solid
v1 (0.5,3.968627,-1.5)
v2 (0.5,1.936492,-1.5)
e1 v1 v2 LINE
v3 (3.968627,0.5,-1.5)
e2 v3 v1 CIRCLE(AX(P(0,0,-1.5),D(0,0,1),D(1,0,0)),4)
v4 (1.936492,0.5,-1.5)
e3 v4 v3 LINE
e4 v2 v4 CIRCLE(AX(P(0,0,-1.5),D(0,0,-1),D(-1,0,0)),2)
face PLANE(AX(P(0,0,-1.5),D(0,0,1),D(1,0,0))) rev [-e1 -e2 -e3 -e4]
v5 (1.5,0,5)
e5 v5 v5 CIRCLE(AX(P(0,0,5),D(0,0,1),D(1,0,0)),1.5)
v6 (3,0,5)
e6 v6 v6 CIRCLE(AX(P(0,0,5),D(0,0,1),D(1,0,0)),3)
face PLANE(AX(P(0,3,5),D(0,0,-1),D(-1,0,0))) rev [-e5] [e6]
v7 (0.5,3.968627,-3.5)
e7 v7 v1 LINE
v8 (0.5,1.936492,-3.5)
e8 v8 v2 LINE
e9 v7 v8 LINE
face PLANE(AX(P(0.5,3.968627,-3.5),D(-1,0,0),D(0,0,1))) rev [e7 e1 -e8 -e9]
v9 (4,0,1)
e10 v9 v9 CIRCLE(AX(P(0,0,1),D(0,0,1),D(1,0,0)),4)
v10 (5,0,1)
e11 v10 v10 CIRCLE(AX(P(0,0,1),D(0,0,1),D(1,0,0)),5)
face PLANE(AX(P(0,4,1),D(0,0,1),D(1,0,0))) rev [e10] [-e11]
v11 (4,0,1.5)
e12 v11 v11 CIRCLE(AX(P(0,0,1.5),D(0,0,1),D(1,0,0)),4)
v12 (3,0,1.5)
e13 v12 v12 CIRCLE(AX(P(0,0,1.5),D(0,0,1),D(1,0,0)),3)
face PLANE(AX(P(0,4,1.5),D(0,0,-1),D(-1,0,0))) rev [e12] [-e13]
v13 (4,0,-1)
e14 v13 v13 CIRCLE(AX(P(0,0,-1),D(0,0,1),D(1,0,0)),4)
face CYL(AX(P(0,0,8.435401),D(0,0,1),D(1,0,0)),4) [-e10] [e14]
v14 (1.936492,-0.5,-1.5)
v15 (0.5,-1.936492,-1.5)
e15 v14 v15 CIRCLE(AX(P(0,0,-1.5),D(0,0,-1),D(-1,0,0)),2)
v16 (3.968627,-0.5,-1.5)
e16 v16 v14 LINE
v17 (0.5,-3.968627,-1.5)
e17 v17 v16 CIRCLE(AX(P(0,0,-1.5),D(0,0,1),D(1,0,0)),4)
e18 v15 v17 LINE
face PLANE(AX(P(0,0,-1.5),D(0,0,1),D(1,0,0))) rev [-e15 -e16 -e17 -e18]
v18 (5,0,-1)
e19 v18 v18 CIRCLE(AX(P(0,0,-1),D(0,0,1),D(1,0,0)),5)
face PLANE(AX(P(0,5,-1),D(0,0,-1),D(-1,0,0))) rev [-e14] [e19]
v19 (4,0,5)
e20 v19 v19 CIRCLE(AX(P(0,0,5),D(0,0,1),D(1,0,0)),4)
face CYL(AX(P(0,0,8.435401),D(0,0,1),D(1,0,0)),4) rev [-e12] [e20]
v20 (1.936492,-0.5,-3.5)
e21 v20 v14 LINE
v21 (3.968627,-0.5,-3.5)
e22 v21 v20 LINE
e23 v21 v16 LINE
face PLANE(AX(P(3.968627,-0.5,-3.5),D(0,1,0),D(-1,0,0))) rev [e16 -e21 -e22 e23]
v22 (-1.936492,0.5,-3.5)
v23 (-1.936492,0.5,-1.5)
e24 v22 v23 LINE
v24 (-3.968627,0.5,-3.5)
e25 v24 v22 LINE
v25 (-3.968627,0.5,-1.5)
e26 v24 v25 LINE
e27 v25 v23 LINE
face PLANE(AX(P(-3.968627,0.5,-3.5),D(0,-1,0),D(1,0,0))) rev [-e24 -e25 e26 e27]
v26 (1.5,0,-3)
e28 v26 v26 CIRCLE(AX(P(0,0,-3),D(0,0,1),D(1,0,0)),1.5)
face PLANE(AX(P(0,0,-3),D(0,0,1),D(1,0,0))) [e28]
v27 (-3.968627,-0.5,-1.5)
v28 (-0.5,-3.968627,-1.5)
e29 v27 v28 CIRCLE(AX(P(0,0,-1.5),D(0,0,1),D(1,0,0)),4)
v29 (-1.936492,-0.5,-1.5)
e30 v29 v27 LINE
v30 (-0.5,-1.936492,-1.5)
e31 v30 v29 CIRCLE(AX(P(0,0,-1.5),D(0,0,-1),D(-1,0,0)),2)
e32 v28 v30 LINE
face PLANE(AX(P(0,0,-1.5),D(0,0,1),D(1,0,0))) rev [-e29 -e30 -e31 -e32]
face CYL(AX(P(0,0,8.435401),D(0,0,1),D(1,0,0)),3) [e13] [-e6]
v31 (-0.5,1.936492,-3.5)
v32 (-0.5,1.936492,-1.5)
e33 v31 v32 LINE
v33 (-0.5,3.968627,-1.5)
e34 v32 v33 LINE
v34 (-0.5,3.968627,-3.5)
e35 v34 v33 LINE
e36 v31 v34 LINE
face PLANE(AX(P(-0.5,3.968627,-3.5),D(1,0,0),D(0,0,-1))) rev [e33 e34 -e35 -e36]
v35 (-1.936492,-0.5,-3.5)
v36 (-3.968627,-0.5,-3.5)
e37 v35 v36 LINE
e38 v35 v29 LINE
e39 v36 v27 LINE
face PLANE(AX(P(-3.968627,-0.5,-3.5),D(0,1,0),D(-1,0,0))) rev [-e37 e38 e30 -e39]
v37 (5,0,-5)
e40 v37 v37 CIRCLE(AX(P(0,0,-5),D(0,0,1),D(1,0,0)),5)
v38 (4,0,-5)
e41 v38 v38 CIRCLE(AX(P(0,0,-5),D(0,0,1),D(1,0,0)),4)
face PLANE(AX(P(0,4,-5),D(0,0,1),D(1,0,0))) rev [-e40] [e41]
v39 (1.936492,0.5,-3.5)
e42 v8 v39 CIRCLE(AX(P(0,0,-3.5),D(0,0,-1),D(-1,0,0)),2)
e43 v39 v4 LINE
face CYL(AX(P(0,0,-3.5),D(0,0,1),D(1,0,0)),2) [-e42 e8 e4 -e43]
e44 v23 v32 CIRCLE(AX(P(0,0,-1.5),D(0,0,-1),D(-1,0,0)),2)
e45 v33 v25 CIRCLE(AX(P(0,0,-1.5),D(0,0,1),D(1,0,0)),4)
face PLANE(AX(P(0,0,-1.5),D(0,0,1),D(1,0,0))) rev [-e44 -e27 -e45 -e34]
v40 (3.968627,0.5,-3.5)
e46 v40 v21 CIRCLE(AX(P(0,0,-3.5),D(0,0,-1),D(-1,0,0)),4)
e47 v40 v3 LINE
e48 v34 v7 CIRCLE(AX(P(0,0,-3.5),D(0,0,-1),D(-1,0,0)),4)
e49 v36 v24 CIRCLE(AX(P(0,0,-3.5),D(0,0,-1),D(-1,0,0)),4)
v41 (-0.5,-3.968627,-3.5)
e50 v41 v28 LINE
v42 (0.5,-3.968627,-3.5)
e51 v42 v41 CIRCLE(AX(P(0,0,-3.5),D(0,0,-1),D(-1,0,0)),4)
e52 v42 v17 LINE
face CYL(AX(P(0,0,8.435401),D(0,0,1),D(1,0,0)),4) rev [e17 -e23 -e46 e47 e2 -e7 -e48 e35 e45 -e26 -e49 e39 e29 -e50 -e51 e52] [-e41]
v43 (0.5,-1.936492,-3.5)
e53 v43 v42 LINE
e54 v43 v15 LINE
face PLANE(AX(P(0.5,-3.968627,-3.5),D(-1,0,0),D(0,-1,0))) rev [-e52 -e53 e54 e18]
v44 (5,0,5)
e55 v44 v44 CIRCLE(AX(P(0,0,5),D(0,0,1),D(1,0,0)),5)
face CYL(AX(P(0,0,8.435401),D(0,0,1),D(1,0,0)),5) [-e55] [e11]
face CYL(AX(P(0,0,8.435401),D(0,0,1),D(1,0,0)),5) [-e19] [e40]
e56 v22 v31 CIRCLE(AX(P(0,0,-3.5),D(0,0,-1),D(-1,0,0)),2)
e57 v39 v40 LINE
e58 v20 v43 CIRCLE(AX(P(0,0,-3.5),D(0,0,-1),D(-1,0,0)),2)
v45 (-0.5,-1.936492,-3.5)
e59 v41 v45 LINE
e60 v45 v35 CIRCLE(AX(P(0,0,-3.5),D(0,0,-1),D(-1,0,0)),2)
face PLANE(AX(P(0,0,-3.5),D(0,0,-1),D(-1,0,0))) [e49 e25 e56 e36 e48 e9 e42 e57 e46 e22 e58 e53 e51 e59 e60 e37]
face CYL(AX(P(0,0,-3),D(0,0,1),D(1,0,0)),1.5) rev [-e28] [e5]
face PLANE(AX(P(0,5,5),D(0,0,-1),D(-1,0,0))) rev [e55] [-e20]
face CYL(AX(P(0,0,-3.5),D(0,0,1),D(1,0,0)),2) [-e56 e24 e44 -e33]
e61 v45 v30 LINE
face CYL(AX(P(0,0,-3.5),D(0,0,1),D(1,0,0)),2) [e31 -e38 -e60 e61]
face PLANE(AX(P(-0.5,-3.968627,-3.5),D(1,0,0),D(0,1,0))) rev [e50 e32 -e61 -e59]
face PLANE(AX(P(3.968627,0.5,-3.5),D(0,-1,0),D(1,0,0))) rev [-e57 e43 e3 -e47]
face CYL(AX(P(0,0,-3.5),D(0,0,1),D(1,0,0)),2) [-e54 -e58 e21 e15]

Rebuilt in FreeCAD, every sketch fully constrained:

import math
import FreeCAD as App
import Part
import Sketcher

doc = App.newDocument("Part")
body = doc.addObject("PartDesign::Body", "Body")

# Sketch on YZ plane
sketch1 = doc.addObject("Sketcher::SketchObject", "Sketch")
body.addObject(sketch1)
sketch1.AttachmentSupport = (doc.YZ_Plane, [""])
sketch1.MapMode = "FlatFace"
sketch1.addGeometry([
    Part.LineSegment(App.Vector(0, -1.5, 0), App.Vector(4, -1.5, 0)),  # 0
    Part.LineSegment(App.Vector(4, -1.5, 0), App.Vector(4, -5, 0)),  # 1
    Part.LineSegment(App.Vector(4, -5, 0), App.Vector(5, -5, 0)),  # 2
    Part.LineSegment(App.Vector(5, -5, 0), App.Vector(5, -1, 0)),  # 3
    Part.LineSegment(App.Vector(5, -1, 0), App.Vector(4, -1, 0)),  # 4
    Part.LineSegment(App.Vector(4, -1, 0), App.Vector(4, 1, 0)),  # 5
    Part.LineSegment(App.Vector(4, 1, 0), App.Vector(5, 1, 0)),  # 6
    Part.LineSegment(App.Vector(5, 1, 0), App.Vector(5, 5, 0)),  # 7
    Part.LineSegment(App.Vector(5, 5, 0), App.Vector(4, 5, 0)),  # 8
    Part.LineSegment(App.Vector(4, 5, 0), App.Vector(4, 1.5, 0)),  # 9
    Part.LineSegment(App.Vector(4, 1.5, 0), App.Vector(3, 1.5, 0)),  # 10
    Part.LineSegment(App.Vector(3, 1.5, 0), App.Vector(3, 5, 0)),  # 11
    Part.LineSegment(App.Vector(3, 5, 0), App.Vector(0, 5, 0)),  # 12
    Part.LineSegment(App.Vector(0, 5, 0), App.Vector(0, -1.5, 0)),  # 13
], False)
sketch1.addConstraint([
    Sketcher.Constraint("Coincident", 0, 2, 1, 1),
    Sketcher.Constraint("Coincident", 1, 2, 2, 1),
    Sketcher.Constraint("Coincident", 2, 2, 3, 1),
    Sketcher.Constraint("Coincident", 3, 2, 4, 1),
    Sketcher.Constraint("Coincident", 4, 2, 5, 1),
    Sketcher.Constraint("Coincident", 5, 2, 6, 1),
    Sketcher.Constraint("Coincident", 6, 2, 7, 1),
    Sketcher.Constraint("Coincident", 7, 2, 8, 1),
    Sketcher.Constraint("Coincident", 8, 2, 9, 1),
    Sketcher.Constraint("Coincident", 9, 2, 10, 1),
    Sketcher.Constraint("Coincident", 10, 2, 11, 1),
    Sketcher.Constraint("Coincident", 11, 2, 12, 1),
    Sketcher.Constraint("Coincident", 12, 2, 13, 1),
    Sketcher.Constraint("Coincident", 13, 2, 0, 1),
    Sketcher.Constraint("Horizontal", 0),
    Sketcher.Constraint("Vertical", 1),
    Sketcher.Constraint("Horizontal", 2),
    Sketcher.Constraint("Vertical", 3),
    Sketcher.Constraint("Horizontal", 4),
    Sketcher.Constraint("Vertical", 5),
    Sketcher.Constraint("Horizontal", 6),
    Sketcher.Constraint("Vertical", 7),
    Sketcher.Constraint("Horizontal", 8),
    Sketcher.Constraint("Vertical", 9),
    Sketcher.Constraint("Horizontal", 10),
    Sketcher.Constraint("Vertical", 11),
    Sketcher.Constraint("Horizontal", 12),
    Sketcher.Constraint("Vertical", 13),
    Sketcher.Constraint("Symmetric", 3, 2, 6, 2, -1),
    Sketcher.Constraint("Symmetric", 1, 2, 8, 2, -1),
    Sketcher.Constraint("PointOnObject", 12, 2, -2),
    Sketcher.Constraint("Horizontal", 8, 2, 11, 2),
    Sketcher.Constraint("Vertical", 1, 2, 4, 2),
    Sketcher.Constraint("Equal", 8, 10),
    Sketcher.Constraint("Equal", 0, 3),
    Sketcher.Constraint("Equal", 1, 9),
    Sketcher.Constraint("DistanceX", 0, 1, 0, 2, 4.0),
    Sketcher.Constraint("DistanceX", 2, 1, 2, 2, 1.0),
    Sketcher.Constraint("DistanceY", 5, 1, 5, 2, 2.0),
    Sketcher.Constraint("DistanceY", 1, 2, 1, 1, 3.5),
])
revolution = doc.addObject("PartDesign::Revolution", "Revolution")
body.addObject(revolution)
revolution.Profile = sketch1
revolution.ReferenceAxis = (sketch1, ["V_Axis"])
revolution.Angle = 360

# Sketch on XY plane
sketch2 = doc.addObject("Sketcher::SketchObject", "Sketch001")
body.addObject(sketch2)
sketch2.AttachmentSupport = (doc.XY_Plane, [""])
sketch2.MapMode = "FlatFace"
sketch2.AttachmentOffset = App.Placement(App.Vector(0, 0, -1.5), App.Rotation())
sketch2.addGeometry([
    Part.LineSegment(App.Vector(0.5, 3.968627, 0), App.Vector(0.5, 1.936492, 0)),  # 0
    Part.ArcOfCircle(Part.Circle(App.Vector(0, 0, 0), App.Vector(0, 0, 1), 2), math.radians(14.477512), math.radians(75.522488)),  # 1
    Part.LineSegment(App.Vector(1.936492, 0.5, 0), App.Vector(3.968627, 0.5, 0)),  # 2
    Part.ArcOfCircle(Part.Circle(App.Vector(0, 0, 0), App.Vector(0, 0, 1), 4), math.radians(-7.180756), math.radians(7.180756)),  # 3
    Part.LineSegment(App.Vector(3.968627, -0.5, 0), App.Vector(1.936492, -0.5, 0)),  # 4
    Part.ArcOfCircle(Part.Circle(App.Vector(0, 0, 0), App.Vector(0, 0, 1), 2), math.radians(-75.522488), math.radians(-14.477512)),  # 5
    Part.LineSegment(App.Vector(0.5, -1.936492, 0), App.Vector(0.5, -3.968627, 0)),  # 6
    Part.ArcOfCircle(Part.Circle(App.Vector(0, 0, 0), App.Vector(0, 0, 1), 4), math.radians(-97.180756), math.radians(-82.819244)),  # 7
    Part.LineSegment(App.Vector(-0.5, -3.968627, 0), App.Vector(-0.5, -1.936492, 0)),  # 8
    Part.ArcOfCircle(Part.Circle(App.Vector(0, 0, 0), App.Vector(0, 0, 1), 2), math.radians(-165.522488), math.radians(-104.477512)),  # 9
    Part.LineSegment(App.Vector(-1.936492, -0.5, 0), App.Vector(-3.968627, -0.5, 0)),  # 10
    Part.ArcOfCircle(Part.Circle(App.Vector(0, 0, 0), App.Vector(0, 0, 1), 4), math.radians(172.819244), math.radians(187.180756)),  # 11
    Part.LineSegment(App.Vector(-3.968627, 0.5, 0), App.Vector(-1.936492, 0.5, 0)),  # 12
    Part.ArcOfCircle(Part.Circle(App.Vector(0, 0, 0), App.Vector(0, 0, 1), 2), math.radians(104.477512), math.radians(165.522488)),  # 13
    Part.LineSegment(App.Vector(-0.5, 1.936492, 0), App.Vector(-0.5, 3.968627, 0)),  # 14
    Part.ArcOfCircle(Part.Circle(App.Vector(0, 0, 0), App.Vector(0, 0, 1), 4), math.radians(82.819244), math.radians(97.180756)),  # 15
], False)
sketch2.addConstraint([
    Sketcher.Constraint("Coincident", 0, 2, 1, 2),
    Sketcher.Constraint("Coincident", 1, 1, 2, 1),
    Sketcher.Constraint("Coincident", 2, 2, 3, 2),
    Sketcher.Constraint("Coincident", 3, 1, 4, 1),
    Sketcher.Constraint("Coincident", 4, 2, 5, 2),
    Sketcher.Constraint("Coincident", 5, 1, 6, 1),
    Sketcher.Constraint("Coincident", 6, 2, 7, 2),
    Sketcher.Constraint("Coincident", 7, 1, 8, 1),
    Sketcher.Constraint("Coincident", 8, 2, 9, 2),
    Sketcher.Constraint("Coincident", 9, 1, 10, 1),
    Sketcher.Constraint("Coincident", 10, 2, 11, 2),
    Sketcher.Constraint("Coincident", 11, 1, 12, 1),
    Sketcher.Constraint("Coincident", 12, 2, 13, 2),
    Sketcher.Constraint("Coincident", 13, 1, 14, 1),
    Sketcher.Constraint("Coincident", 14, 2, 15, 2),
    Sketcher.Constraint("Coincident", 15, 1, 0, 1),
    Sketcher.Constraint("Vertical", 0),
    Sketcher.Constraint("Horizontal", 2),
    Sketcher.Constraint("Horizontal", 4),
    Sketcher.Constraint("Vertical", 6),
    Sketcher.Constraint("Vertical", 8),
    Sketcher.Constraint("Horizontal", 10),
    Sketcher.Constraint("Horizontal", 12),
    Sketcher.Constraint("Vertical", 14),
    Sketcher.Constraint("Coincident", 1, 3, -1, 1),
    Sketcher.Constraint("Coincident", 3, 3, -1, 1),
    Sketcher.Constraint("Coincident", 5, 3, -1, 1),
    Sketcher.Constraint("Coincident", 7, 3, -1, 1),
    Sketcher.Constraint("Coincident", 9, 3, -1, 1),
    Sketcher.Constraint("Coincident", 11, 3, -1, 1),
    Sketcher.Constraint("Coincident", 13, 3, -1, 1),
    Sketcher.Constraint("Coincident", 15, 3, -1, 1),
    Sketcher.Constraint("Equal", 1, 5),
    Sketcher.Constraint("Equal", 3, 7),
    Sketcher.Constraint("Equal", 5, 9),
    Sketcher.Constraint("Equal", 7, 11),
    Sketcher.Constraint("Equal", 9, 13),
    Sketcher.Constraint("Equal", 11, 15),
    Sketcher.Constraint("Horizontal", 6, 2, 7, 1),
    Sketcher.Constraint("Horizontal", 4, 2, 9, 1),
    Sketcher.Constraint("Horizontal", 2, 2, 11, 1),
    Sketcher.Constraint("Horizontal", 0, 2, 13, 1),
    Sketcher.Constraint("Vertical", 2, 2, 3, 1),
    Sketcher.Constraint("Vertical", 0, 2, 5, 1),
    Sketcher.Constraint("Equal", 12, 0),
    Sketcher.Constraint("Radius", 1, 2.0),
    Sketcher.Constraint("Radius", 3, 4.0),
    Sketcher.Constraint("DistanceY", 3, 1, 2, 2, 1.0),
])
pad1 = doc.addObject("PartDesign::Pad", "Pad")
body.addObject(pad1)
pad1.Profile = sketch2
pad1.Length = 2
pad1.Reversed = True

# Sketch on XY plane
sketch3 = doc.addObject("Sketcher::SketchObject", "Sketch002")
body.addObject(sketch3)
sketch3.AttachmentSupport = (doc.XY_Plane, [""])
sketch3.MapMode = "FlatFace"
sketch3.AttachmentOffset = App.Placement(App.Vector(0, 0, 5), App.Rotation())
sketch3.addGeometry(Part.Circle(App.Vector(0, 0, 0), App.Vector(0, 0, 1), 1.5), False)
sketch3.addConstraint([
    Sketcher.Constraint("Coincident", 0, 3, -1, 1),
    Sketcher.Constraint("Diameter", 0, 3.0),
])
pocket1 = doc.addObject("PartDesign::Pocket", "Pocket")
body.addObject(pocket1)
pocket1.Profile = sketch3
pocket1.Length = 8

doc.recompute()
